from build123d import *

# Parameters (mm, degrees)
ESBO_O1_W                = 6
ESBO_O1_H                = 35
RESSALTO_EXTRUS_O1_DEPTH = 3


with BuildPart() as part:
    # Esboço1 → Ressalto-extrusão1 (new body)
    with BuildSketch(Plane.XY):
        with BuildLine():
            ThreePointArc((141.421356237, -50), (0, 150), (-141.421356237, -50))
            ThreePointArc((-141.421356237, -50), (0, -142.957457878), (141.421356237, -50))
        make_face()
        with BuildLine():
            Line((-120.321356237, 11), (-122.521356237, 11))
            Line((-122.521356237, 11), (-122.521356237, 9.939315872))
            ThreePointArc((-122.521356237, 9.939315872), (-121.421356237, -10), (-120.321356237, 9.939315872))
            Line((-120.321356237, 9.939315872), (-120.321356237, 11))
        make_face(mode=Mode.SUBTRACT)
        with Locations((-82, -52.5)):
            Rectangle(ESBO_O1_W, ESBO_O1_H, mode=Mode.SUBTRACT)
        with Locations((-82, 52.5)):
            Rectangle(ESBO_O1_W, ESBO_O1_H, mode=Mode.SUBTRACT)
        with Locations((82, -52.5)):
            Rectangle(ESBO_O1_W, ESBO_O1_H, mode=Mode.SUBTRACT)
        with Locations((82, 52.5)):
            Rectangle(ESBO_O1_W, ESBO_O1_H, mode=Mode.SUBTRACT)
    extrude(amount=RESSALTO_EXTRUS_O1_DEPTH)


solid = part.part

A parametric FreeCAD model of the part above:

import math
import FreeCAD as App
import Part
import Sketcher

V = App.Vector
Q = App.Units.Quantity


def add_polygon(sketch, points):
    """Adds a closed chain of lines whose ends are joined by coincident constraints."""
    first, n = sketch.GeometryCount, len(points)
    for a, b in zip(points, points[1:] + points[:1]):
        sketch.addGeometry(Part.LineSegment(App.Vector(*a, 0), App.Vector(*b, 0)), False)
    for i in range(n):
        sketch.addConstraint(Sketcher.Constraint("Coincident", first + i, 2, first + (i + 1) % n, 1))

doc = App.newDocument("Part")
params = doc.addObject("Spreadsheet::Sheet", "Params")
for row, (alias, value) in enumerate([
    ("sketch1_radius", "150 mm"),
    ("sketch1_radius2", "10 mm"),
    ("sketch1_width", "6 mm"),
    ("sketch1_height", "35 mm"),
    ("sketch1_width2", "2.2 mm"),
    ("pad1_length", "3 mm"),
], start=1):
    params.set(f"A{row}", alias)
    params.set(f"B{row}", "=" + value)
    params.setAlias(f"B{row}", alias)

body = doc.addObject("PartDesign::Body", "Body")

# Sketch on XY plane
sketch1 = doc.addObject("Sketcher::SketchObject", "Sketch")
body.addObject(sketch1)
sketch1.AttachmentSupport = (doc.XY_Plane, [""])
sketch1.MapMode = "FlatFace"
sketch1.addGeometry(Part.ArcOfCircle(Part.Circle(V(0, 0, 0), V(0, 0, 1), 150), math.radians(-19), math.radians(199)), False)  # 0
sketch1.addGeometry(Part.ArcOfCircle(Part.Circle(V(0, 11.1, 0), V(0, 0, 1), 154.1), math.radians(-157), math.radians(-23)), False)  # 1
add_polygon(sketch1, [(-79, -70), (-85, -70), (-85, -35), (-79, -35)])  # lines 2-5
add_polygon(sketch1, [(85, -70), (79, -70), (79, -35), (85, -35)])  # lines 6-9
sketch1.addGeometry(Part.LineSegment(V(-122.5, 11, 0), V(-120.3, 11, 0)), False)  # 10
sketch1.addGeometry(Part.LineSegment(V(-120.3, 11, 0), V(-120.3, 9.9, 0)), False)  # 11
sketch1.addGeometry(Part.ArcOfCircle(Part.Circle(V(-121.4, 0, 0), V(0, 0, 1), 10), math.radians(96), math.radians(444)), False)  # 12
sketch1.addGeometry(Part.LineSegment(V(-122.5, 9.9, 0), V(-122.5, 11, 0)), False)  # 13
add_polygon(sketch1, [(-79, 35), (-85, 35), (-85, 70), (-79, 70)])  # lines 14-17
add_polygon(sketch1, [(85, 35), (79, 35), (79, 70), (85, 70)])  # lines 18-21
sketch1.addConstraint([
    Sketcher.Constraint("Coincident", 0, 1, 1, 2),
    Sketcher.Constraint("Coincident", 1, 1, 0, 2),
    Sketcher.Constraint("Coincident", 10, 2, 11, 1),
    Sketcher.Constraint("Coincident", 11, 2, 12, 2),
    Sketcher.Constraint("Coincident", 12, 1, 13, 1),
    Sketcher.Constraint("Coincident", 13, 2, 10, 1),
    Sketcher.Constraint("Horizontal", 2),
    Sketcher.Constraint("Vertical", 3),
    Sketcher.Constraint("Horizontal", 4),
    Sketcher.Constraint("Vertical", 5),
    Sketcher.Constraint("Horizontal", 6),
    Sketcher.Constraint("Vertical", 7),
    Sketcher.Constraint("Horizontal", 8),
    Sketcher.Constraint("Vertical", 9),
    Sketcher.Constraint("Horizontal", 10),
    Sketcher.Constraint("Vertical", 11),
    Sketcher.Constraint("Vertical", 13),
    Sketcher.Constraint("Horizontal", 14),
    Sketcher.Constraint("Vertical", 15),
    Sketcher.Constraint("Horizontal", 16),
    Sketcher.Constraint("Vertical", 17),
    Sketcher.Constraint("Horizontal", 18),
    Sketcher.Constraint("Vertical", 19),
    Sketcher.Constraint("Horizontal", 20),
    Sketcher.Constraint("Vertical", 21),
    Sketcher.Constraint("Coincident", 0, 3, -1, 1),
    Sketcher.Constraint("Symmetric", 8, 2, 14, 2, -1, 1),
    Sketcher.Constraint("Symmetric", 6, 2, 16, 2, -1, 1),
    Sketcher.Constraint("Symmetric", 4, 2, 18, 2, -1, 1),
    Sketcher.Constraint("Symmetric", 2, 2, 20, 2, -1, 1),
    Sketcher.Constraint("Symmetric", 5, 2, 6, 2, -2),
    Sketcher.Constraint("Symmetric", 3, 2, 8, 2, -2),
    Sketcher.Constraint("PointOnObject", 1, 3, -2),
    Sketcher.Constraint("PointOnObject", 12, 3, -1),
    Sketcher.Constraint("Horizontal", 11, 2, 12, 1),
    Sketcher.Constraint("Radius", 0, Q("150 mm")),
    Sketcher.Constraint("Radius", 12, Q("10 mm")),
    Sketcher.Constraint("DistanceX", 2, 2, 2, 1, Q("6 mm")),
    Sketcher.Constraint("DistanceY", 3, 1, 3, 2, Q("35 mm")),
    Sketcher.Constraint("DistanceX", 10, 1, 10, 2, Q("2.2 mm")),
    Sketcher.Constraint("DistanceY", 0, 1, -1, 1, Q("50 mm")),
    Sketcher.Constraint("DistanceX", 2, 2, -1, 1, Q("85 mm")),
    Sketcher.Constraint("DistanceY", 2, 2, -1, 1, Q("70 mm")),
    Sketcher.Constraint("DistanceY", -1, 1, 10, 2, Q("11 mm")),
    Sketcher.Constraint("DistanceX", 1, 1, 12, 3, Q("20 mm")),
    Sketcher.Constraint("Radius", 1, Q("154.054821 mm")),
])
sketch1.setExpression("Constraints[51]", "Params.sketch1_radius")
sketch1.setExpression("Constraints[52]", "Params.sketch1_radius2")
sketch1.setExpression("Constraints[53]", "Params.sketch1_width")
sketch1.setExpression("Constraints[54]", "Params.sketch1_height")
sketch1.setExpression("Constraints[55]", "Params.sketch1_width2")
pad1 = doc.addObject("PartDesign::Pad", "Pad")
body.addObject(pad1)
pad1.Profile = sketch1
pad1.setExpression("Length", "Params.pad1_length")

doc.recompute()
